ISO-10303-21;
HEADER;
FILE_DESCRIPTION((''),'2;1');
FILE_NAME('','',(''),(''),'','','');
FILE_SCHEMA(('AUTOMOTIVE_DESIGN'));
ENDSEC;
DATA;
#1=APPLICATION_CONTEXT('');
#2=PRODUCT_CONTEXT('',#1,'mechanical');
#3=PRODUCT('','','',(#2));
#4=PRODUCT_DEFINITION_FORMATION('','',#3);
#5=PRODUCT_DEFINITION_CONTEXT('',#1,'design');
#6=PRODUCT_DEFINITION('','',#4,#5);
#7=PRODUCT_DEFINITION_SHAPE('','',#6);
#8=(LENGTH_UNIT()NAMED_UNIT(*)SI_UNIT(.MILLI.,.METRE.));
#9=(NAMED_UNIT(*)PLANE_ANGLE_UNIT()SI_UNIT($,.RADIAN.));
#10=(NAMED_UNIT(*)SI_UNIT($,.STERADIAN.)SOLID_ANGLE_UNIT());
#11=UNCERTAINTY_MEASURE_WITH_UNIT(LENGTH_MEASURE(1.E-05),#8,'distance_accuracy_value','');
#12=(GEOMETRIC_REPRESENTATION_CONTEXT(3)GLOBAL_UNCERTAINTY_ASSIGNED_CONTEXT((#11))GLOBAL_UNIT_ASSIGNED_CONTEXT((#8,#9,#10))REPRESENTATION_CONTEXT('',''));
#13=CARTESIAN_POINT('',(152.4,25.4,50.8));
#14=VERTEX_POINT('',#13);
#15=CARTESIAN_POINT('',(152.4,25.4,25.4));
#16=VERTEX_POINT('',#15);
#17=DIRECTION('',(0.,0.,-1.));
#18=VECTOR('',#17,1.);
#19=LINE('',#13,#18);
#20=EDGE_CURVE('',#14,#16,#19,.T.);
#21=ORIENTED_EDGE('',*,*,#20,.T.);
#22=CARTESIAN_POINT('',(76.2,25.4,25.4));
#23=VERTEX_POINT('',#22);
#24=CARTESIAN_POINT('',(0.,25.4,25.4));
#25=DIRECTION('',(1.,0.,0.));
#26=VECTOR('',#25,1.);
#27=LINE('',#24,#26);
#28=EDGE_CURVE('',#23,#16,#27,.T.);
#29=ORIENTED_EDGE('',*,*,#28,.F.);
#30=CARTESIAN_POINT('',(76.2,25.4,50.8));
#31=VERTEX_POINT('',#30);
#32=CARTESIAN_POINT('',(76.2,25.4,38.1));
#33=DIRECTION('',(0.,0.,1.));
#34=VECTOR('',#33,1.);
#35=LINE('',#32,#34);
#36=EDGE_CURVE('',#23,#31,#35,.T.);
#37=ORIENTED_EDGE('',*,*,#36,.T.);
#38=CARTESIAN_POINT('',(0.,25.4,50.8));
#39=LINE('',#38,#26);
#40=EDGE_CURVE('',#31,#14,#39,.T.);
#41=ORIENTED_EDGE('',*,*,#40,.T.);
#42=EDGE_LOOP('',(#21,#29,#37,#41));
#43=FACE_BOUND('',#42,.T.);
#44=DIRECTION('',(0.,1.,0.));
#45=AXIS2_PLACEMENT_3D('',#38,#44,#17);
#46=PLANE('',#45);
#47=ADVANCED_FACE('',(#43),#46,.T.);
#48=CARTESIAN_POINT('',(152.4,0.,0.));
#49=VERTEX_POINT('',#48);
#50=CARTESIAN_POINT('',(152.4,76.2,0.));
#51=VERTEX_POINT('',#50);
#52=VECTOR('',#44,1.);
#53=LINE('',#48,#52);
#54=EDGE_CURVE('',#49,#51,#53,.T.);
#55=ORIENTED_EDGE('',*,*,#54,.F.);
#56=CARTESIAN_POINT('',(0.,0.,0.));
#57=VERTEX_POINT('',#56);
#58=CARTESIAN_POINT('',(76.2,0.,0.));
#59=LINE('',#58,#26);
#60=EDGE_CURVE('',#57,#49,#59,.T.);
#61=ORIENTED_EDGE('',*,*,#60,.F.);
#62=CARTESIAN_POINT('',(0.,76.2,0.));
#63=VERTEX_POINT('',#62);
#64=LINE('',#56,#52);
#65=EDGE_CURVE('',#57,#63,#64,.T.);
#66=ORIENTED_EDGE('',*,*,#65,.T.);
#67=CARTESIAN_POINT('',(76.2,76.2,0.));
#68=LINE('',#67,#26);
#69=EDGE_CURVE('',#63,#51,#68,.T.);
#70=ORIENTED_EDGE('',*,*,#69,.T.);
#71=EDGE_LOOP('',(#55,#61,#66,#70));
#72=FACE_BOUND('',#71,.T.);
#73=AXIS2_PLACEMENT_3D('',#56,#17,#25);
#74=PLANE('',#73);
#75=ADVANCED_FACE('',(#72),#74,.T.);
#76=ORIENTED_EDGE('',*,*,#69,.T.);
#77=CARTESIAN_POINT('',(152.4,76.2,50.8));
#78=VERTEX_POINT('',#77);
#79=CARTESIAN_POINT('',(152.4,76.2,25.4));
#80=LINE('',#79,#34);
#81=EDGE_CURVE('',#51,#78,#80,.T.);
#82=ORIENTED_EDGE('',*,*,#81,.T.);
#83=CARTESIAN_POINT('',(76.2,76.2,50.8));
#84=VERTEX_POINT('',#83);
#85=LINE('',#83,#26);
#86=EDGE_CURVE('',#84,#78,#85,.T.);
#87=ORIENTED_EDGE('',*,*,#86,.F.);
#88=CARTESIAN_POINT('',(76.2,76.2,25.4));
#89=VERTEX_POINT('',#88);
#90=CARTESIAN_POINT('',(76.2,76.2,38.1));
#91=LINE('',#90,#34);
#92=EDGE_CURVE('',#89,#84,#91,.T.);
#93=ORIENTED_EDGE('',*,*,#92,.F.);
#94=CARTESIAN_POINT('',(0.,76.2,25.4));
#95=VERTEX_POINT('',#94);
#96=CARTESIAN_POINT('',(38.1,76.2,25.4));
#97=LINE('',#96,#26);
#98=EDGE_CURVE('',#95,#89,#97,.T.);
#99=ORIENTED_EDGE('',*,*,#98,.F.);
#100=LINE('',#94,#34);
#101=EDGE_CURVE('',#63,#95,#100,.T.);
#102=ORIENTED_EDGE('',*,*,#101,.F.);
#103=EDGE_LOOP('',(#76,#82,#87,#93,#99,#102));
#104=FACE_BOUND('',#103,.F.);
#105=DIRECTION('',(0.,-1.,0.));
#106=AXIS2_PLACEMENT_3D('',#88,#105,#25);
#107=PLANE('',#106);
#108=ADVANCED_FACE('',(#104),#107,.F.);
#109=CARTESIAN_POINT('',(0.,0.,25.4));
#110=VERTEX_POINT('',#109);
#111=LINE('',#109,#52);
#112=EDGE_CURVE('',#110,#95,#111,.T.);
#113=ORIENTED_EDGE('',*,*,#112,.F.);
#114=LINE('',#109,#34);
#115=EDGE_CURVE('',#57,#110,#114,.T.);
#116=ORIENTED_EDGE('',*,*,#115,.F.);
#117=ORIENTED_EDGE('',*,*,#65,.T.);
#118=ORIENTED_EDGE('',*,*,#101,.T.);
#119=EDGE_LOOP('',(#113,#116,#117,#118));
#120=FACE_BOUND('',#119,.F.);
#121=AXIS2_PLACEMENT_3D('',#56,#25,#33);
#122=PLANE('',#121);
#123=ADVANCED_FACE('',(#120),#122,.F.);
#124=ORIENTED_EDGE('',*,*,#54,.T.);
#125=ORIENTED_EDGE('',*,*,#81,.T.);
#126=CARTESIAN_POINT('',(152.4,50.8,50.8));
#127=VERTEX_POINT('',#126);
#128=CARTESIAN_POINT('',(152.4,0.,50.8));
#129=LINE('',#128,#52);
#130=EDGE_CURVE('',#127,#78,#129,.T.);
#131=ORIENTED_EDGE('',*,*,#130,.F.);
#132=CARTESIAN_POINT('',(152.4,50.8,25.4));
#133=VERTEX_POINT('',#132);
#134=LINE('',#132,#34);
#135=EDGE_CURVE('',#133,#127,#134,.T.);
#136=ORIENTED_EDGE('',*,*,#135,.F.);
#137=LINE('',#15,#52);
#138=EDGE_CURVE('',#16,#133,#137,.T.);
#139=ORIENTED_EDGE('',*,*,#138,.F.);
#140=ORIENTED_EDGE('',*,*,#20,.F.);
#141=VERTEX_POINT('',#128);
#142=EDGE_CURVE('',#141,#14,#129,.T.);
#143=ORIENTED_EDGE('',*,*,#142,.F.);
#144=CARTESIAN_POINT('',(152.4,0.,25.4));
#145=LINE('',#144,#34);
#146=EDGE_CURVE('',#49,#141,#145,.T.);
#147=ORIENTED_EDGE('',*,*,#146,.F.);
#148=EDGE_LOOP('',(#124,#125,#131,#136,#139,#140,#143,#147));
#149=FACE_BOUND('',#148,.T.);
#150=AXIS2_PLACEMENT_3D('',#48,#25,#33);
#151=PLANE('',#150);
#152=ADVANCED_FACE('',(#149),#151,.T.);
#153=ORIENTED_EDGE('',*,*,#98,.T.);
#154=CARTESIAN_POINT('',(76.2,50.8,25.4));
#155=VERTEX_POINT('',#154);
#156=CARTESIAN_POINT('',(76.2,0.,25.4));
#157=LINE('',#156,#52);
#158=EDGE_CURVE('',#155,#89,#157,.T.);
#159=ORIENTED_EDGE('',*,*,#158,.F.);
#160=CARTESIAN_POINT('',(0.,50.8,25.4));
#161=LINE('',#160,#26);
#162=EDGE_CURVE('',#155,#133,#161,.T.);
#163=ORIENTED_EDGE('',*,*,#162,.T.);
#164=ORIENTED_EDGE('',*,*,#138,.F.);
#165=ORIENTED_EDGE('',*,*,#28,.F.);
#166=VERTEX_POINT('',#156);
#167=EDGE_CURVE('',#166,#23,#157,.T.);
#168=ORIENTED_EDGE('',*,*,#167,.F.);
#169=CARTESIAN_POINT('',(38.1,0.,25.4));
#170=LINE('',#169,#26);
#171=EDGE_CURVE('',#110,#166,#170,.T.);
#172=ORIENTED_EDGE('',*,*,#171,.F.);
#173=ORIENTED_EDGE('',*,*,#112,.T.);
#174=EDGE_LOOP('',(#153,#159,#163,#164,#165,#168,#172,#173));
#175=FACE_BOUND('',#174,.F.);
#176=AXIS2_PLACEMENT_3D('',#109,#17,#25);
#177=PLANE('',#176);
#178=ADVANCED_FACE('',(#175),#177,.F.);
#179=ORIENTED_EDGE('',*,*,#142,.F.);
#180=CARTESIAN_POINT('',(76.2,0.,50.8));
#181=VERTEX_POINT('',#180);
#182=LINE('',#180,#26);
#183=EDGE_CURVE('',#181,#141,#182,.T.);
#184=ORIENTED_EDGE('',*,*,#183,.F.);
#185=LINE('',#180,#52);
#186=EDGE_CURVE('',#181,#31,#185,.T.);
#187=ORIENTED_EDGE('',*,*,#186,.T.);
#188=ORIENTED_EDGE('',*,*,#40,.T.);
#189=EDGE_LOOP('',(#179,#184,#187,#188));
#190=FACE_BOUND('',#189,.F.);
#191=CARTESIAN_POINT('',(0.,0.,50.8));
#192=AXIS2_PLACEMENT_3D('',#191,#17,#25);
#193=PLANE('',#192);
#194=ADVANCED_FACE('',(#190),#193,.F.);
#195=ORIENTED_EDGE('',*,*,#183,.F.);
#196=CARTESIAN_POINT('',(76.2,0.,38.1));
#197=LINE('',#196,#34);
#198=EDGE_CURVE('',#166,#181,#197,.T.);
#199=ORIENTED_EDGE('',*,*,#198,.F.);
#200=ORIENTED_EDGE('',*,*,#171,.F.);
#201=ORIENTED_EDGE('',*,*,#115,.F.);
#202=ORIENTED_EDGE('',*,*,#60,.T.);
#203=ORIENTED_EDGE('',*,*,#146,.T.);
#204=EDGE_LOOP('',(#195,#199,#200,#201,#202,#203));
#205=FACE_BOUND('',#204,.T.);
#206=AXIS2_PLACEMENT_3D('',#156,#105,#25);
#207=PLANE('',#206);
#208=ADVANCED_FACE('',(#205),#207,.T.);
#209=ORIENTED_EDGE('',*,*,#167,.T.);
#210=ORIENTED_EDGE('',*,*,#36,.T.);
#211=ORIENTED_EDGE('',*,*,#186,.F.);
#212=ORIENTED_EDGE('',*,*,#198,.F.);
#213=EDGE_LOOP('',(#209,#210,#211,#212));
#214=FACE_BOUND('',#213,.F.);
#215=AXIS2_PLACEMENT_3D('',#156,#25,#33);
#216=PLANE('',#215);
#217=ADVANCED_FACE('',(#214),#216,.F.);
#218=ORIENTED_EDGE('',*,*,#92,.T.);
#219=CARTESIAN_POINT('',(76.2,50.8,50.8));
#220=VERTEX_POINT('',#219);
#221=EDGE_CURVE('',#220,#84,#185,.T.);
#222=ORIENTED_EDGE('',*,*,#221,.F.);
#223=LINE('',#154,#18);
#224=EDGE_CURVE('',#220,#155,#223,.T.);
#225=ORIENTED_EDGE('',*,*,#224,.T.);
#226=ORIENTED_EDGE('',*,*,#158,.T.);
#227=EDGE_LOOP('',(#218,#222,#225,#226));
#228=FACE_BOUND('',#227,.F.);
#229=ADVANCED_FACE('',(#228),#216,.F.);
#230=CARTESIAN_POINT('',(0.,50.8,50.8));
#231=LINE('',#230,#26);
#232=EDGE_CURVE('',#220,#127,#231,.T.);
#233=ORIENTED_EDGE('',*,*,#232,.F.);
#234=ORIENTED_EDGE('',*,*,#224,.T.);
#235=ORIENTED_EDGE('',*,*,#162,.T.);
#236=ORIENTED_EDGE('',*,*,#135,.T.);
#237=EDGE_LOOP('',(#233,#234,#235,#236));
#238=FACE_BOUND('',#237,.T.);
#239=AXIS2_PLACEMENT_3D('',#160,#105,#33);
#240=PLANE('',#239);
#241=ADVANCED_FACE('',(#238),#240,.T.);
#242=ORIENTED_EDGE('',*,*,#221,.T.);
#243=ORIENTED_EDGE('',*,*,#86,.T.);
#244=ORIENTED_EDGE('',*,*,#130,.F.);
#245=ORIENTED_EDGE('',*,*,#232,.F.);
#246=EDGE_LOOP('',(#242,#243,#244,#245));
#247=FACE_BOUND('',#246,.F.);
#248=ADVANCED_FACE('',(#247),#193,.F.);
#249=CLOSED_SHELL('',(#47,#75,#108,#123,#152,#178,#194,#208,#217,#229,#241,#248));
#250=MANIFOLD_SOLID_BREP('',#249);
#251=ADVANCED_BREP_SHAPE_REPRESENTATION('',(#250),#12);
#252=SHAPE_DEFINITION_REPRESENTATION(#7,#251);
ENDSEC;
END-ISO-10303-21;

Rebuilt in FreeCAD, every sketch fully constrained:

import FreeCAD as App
import Part
import Sketcher
Q = App.Units.Quantity

doc = App.newDocument("Part")
body = doc.addObject("PartDesign::Body", "Body")

# Sketch on XZ plane
sketch1 = doc.addObject("Sketcher::SketchObject", "Sketch")
body.addObject(sketch1)
sketch1.AttachmentSupport = (doc.XZ_Plane, [""])
sketch1.MapMode = "FlatFace"
sketch1.addGeometry(Part.LineSegment(App.Vector(0, 51, 0), App.Vector(0, 0, 0)), False)
sketch1.addGeometry(Part.LineSegment(App.Vector(0, 0, 0), App.Vector(152, 0, 0)), False)
sketch1.addGeometry(Part.LineSegment(App.Vector(152, 0, 0), App.Vector(152, 51, 0)), False)
sketch1.addGeometry(Part.LineSegment(App.Vector(152, 51, 0), App.Vector(0, 51, 0)), False)
sketch1.addConstraint(Sketcher.Constraint("Coincident", 0, 2, 1, 1))
sketch1.addConstraint(Sketcher.Constraint("Coincident", 1, 2, 2, 1))
sketch1.addConstraint(Sketcher.Constraint("Coincident", 2, 2, 3, 1))
sketch1.addConstraint(Sketcher.Constraint("Coincident", 3, 2, 0, 1))
sketch1.addConstraint(Sketcher.Constraint("Vertical", 0))
sketch1.addConstraint(Sketcher.Constraint("Horizontal", 1))
sketch1.addConstraint(Sketcher.Constraint("Vertical", 2))
sketch1.addConstraint(Sketcher.Constraint("Horizontal", 3))
sketch1.addConstraint(Sketcher.Constraint("Coincident", 0, 2, -1, 1))
sketch1.addConstraint(Sketcher.Constraint("DistanceX", 1, 1, 1, 2, Q("6 in")))
sketch1.addConstraint(Sketcher.Constraint("DistanceY", 0, 2, 0, 1, Q("2 in")))
pad1 = doc.addObject("PartDesign::Pad", "Pad")
body.addObject(pad1)
pad1.Profile = sketch1
pad1.Length = Q("3 in")
pad1.Reversed = True

# Sketch on XZ plane
sketch2 = doc.addObject("Sketcher::SketchObject", "Sketch001")
body.addObject(sketch2)
sketch2.AttachmentSupport = (doc.XZ_Plane, [""])
sketch2.MapMode = "FlatFace"
sketch2.addGeometry(Part.LineSegment(App.Vector(0, 51, 0), App.Vector(0, 25, 0)), False)
sketch2.addGeometry(Part.LineSegment(App.Vector(0, 25, 0), App.Vector(76, 25, 0)), False)
sketch2.addGeometry(Part.LineSegment(App.Vector(76, 25, 0), App.Vector(76, 51, 0)), False)
sketch2.addGeometry(Part.LineSegment(App.Vector(76, 51, 0), App.Vector(0, 51, 0)), False)
sketch2.addConstraint(Sketcher.Constraint("Coincident", 0, 2, 1, 1))
sketch2.addConstraint(Sketcher.Constraint("Coincident", 1, 2, 2, 1))
sketch2.addConstraint(Sketcher.Constraint("Coincident", 2, 2, 3, 1))
sketch2.addConstraint(Sketcher.Constraint("Coincident", 3, 2, 0, 1))
sketch2.addConstraint(Sketcher.Constraint("Vertical", 0))
sketch2.addConstraint(Sketcher.Constraint("Horizontal", 1))
sketch2.addConstraint(Sketcher.Constraint("Vertical", 2))
sketch2.addConstraint(Sketcher.Constraint("Horizontal", 3))
sketch2.addConstraint(Sketcher.Constraint("PointOnObject", 0, 2, -2))
sketch2.addConstraint(Sketcher.Constraint("DistanceX", 1, 1, 1, 2, Q("3 in")))
sketch2.addConstraint(Sketcher.Constraint("DistanceY", 0, 2, 0, 1, Q("1 in")))
sketch2.addConstraint(Sketcher.Constraint("DistanceY", -1, 1, 0, 2, Q("1 in")))
pocket1 = doc.addObject("PartDesign::Pocket", "Pocket")
body.addObject(pocket1)
pocket1.Profile = sketch2
pocket1.Length = Q("3 in")

# Sketch on YZ plane
sketch3 = doc.addObject("Sketcher::SketchObject", "Sketch002")
body.addObject(sketch3)
sketch3.AttachmentSupport = (doc.YZ_Plane, [""])
sketch3.MapMode = "FlatFace"
sketch3.addGeometry(Part.LineSegment(App.Vector(51, 51, 0), App.Vector(25, 51, 0)), False)
sketch3.addGeometry(Part.LineSegment(App.Vector(25, 51, 0), App.Vector(25, 25, 0)), False)
sketch3.addGeometry(Part.LineSegment(App.Vector(25, 25, 0), App.Vector(51, 25, 0)), False)
sketch3.addGeometry(Part.LineSegment(App.Vector(51, 25, 0), App.Vector(51, 51, 0)), False)
sketch3.addConstraint(Sketcher.Constraint("Coincident", 0, 2, 1, 1))
sketch3.addConstraint(Sketcher.Constraint("Coincident", 1, 2, 2, 1))
sketch3.addConstraint(Sketcher.Constraint("Coincident", 2, 2, 3, 1))
sketch3.addConstraint(Sketcher.Constraint("Coincident", 3, 2, 0, 1))
sketch3.addConstraint(Sketcher.Constraint("Horizontal", 0))
sketch3.addConstraint(Sketcher.Constraint("Vertical", 1))
sketch3.addConstraint(Sketcher.Constraint("Horizontal", 2))
sketch3.addConstraint(Sketcher.Constraint("Vertical", 3))
sketch3.addConstraint(Sketcher.Constraint("Equal", 2, 1))
sketch3.addConstraint(Sketcher.Constraint("DistanceX", 0, 2, 0, 1, Q("1 in")))
sketch3.addConstraint(Sketcher.Constraint("DistanceX", -1, 1, 0, 2, Q("1 in")))
sketch3.addConstraint(Sketcher.Constraint("DistanceY", -1, 1, 0, 2, Q("2 in")))
pocket2 = doc.addObject("PartDesign::Pocket", "Pocket001")
body.addObject(pocket2)
pocket2.Profile = sketch3
pocket2.Length = Q("6 in")
pocket2.Reversed = True

doc.recompute()
